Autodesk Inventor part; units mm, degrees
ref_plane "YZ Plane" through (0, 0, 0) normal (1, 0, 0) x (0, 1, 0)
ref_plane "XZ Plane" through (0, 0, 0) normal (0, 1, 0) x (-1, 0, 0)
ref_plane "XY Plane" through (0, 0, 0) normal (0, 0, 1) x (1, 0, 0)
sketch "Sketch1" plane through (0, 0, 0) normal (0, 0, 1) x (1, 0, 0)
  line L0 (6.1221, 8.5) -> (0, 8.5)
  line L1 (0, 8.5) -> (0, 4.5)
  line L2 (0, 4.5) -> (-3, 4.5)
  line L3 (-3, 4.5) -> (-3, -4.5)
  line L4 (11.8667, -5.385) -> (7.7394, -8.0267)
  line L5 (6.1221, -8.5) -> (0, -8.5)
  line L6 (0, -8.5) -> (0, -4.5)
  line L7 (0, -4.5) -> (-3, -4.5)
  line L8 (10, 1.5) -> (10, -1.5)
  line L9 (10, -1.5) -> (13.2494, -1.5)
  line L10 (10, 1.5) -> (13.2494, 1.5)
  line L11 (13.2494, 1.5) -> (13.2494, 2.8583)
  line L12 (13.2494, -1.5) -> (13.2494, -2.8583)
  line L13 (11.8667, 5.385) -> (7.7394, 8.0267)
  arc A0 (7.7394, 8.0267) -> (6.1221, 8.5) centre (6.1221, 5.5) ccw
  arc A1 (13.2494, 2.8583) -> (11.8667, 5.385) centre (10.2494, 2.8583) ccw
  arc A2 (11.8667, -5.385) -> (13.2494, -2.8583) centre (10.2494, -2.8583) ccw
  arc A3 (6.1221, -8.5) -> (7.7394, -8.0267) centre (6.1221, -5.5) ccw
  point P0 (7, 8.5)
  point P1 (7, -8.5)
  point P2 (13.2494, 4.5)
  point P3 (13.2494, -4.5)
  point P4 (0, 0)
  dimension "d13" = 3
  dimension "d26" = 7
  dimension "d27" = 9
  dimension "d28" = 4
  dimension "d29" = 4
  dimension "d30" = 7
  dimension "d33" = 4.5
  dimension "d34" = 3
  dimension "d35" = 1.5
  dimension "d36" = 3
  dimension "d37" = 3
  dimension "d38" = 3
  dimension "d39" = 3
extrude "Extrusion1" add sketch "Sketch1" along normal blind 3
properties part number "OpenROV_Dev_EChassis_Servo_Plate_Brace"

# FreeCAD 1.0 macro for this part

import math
import FreeCAD as App
import Part
import Sketcher
from FreeCAD import Vector

doc = App.newDocument("Part")
params = doc.addObject("Spreadsheet::Sheet", "Params")
for row, (alias, value) in enumerate([
    ("sketch1_radius", "3 mm"),
    ("sketch1_width", "3 mm"),
    ("sketch1_height", "4 mm"),
    ("sketch1_height2", "9 mm"),
    ("pad1_length", "3 mm"),
], start=1):
    params.set(f"A{row}", alias)
    params.set(f"B{row}", "=" + value)
    params.setAlias(f"B{row}", alias)

body = doc.addObject("PartDesign::Body", "Body")

sketch1 = body.newObject("Sketcher::SketchObject", "Sketch")
sketch1.AttachmentSupport = (doc.getObject("XY_Plane"), [""])
sketch1.MapMode = "FlatFace"
sketch1.addGeometry(Part.ArcOfCircle(Part.Circle(Vector(6.1221, 5.5, 0), Vector(0, 0, 1), 2.999979), math.radians(57.377347), math.radians(90)), False)
sketch1.addGeometry(Part.LineSegment(Vector(6.1221, 8.5, 0), Vector(0, 8.5, 0)), False)
sketch1.addGeometry(Part.LineSegment(Vector(0, 8.5, 0), Vector(0, 4.5, 0)), False)
sketch1.addGeometry(Part.LineSegment(Vector(0, 4.5, 0), Vector(-3, 4.5, 0)), False)
sketch1.addGeometry(Part.LineSegment(Vector(-3, 4.5, 0), Vector(-3, -4.5, 0)), False)
sketch1.addGeometry(Part.LineSegment(Vector(-3, -4.5, 0), Vector(0, -4.5, 0)), False)
sketch1.addGeometry(Part.LineSegment(Vector(0, -4.5, 0), Vector(0, -8.5, 0)), False)
sketch1.addGeometry(Part.LineSegment(Vector(0, -8.5, 0), Vector(6.1221, -8.5, 0)), False)
sketch1.addGeometry(Part.ArcOfCircle(Part.Circle(Vector(6.1221, -5.5, 0), Vector(0, 0, 1), 3), math.radians(-90), math.radians(-57.377347)), False)
sketch1.addGeometry(Part.LineSegment(Vector(7.7394, -8.0267, 0), Vector(11.8667, -5.385, 0)), False)
sketch1.addGeometry(Part.ArcOfCircle(Part.Circle(Vector(10.2494, -2.8583, 0), Vector(0, 0, 1), 2.999979), math.radians(-57.377347), math.radians(0)), False)
sketch1.addGeometry(Part.LineSegment(Vector(13.2494, -2.8583, 0), Vector(13.2494, -1.5, 0)), False)
sketch1.addGeometry(Part.LineSegment(Vector(13.2494, -1.5, 0), Vector(10, -1.5, 0)), False)
sketch1.addGeometry(Part.LineSegment(Vector(10, -1.5, 0), Vector(10, 1.5, 0)), False)
sketch1.addGeometry(Part.LineSegment(Vector(10, 1.5, 0), Vector(13.2494, 1.5, 0)), False)
sketch1.addGeometry(Part.LineSegment(Vector(13.2494, 1.5, 0), Vector(13.2494, 2.8583, 0)), False)
sketch1.addGeometry(Part.ArcOfCircle(Part.Circle(Vector(10.2494, 2.8583, 0), Vector(0, 0, 1), 3), math.radians(0), math.radians(57.377347)), False)
sketch1.addGeometry(Part.LineSegment(Vector(11.8667, 5.385, 0), Vector(7.7394, 8.0267, 0)), False)
sketch1.addConstraint(Sketcher.Constraint("Tangent", 0, 2, 1, 1))
sketch1.addConstraint(Sketcher.Constraint("Coincident", 1, 2, 2, 1))
sketch1.addConstraint(Sketcher.Constraint("Coincident", 2, 2, 3, 1))
sketch1.addConstraint(Sketcher.Constraint("Coincident", 3, 2, 4, 1))
sketch1.addConstraint(Sketcher.Constraint("Coincident", 4, 2, 5, 1))
sketch1.addConstraint(Sketcher.Constraint("Coincident", 5, 2, 6, 1))
sketch1.addConstraint(Sketcher.Constraint("Coincident", 6, 2, 7, 1))
sketch1.addConstraint(Sketcher.Constraint("Tangent", 7, 2, 8, 1))
sketch1.addConstraint(Sketcher.Constraint("Tangent", 8, 2, 9, 1))
sketch1.addConstraint(Sketcher.Constraint("Tangent", 9, 2, 10, 1))
sketch1.addConstraint(Sketcher.Constraint("Tangent", 10, 2, 11, 1))
sketch1.addConstraint(Sketcher.Constraint("Coincident", 11, 2, 12, 1))
sketch1.addConstraint(Sketcher.Constraint("Coincident", 12, 2, 13, 1))
sketch1.addConstraint(Sketcher.Constraint("Coincident", 13, 2, 14, 1))
sketch1.addConstraint(Sketcher.Constraint("Coincident", 14, 2, 15, 1))
sketch1.addConstraint(Sketcher.Constraint("Tangent", 15, 2, 16, 1))
sketch1.addConstraint(Sketcher.Constraint("Tangent", 16, 2, 17, 1))
sketch1.addConstraint(Sketcher.Constraint("Tangent", 17, 2, 0, 1))
sketch1.addConstraint(Sketcher.Constraint("Horizontal", 1))
sketch1.addConstraint(Sketcher.Constraint("Vertical", 2))
sketch1.addConstraint(Sketcher.Constraint("Horizontal", 3))
sketch1.addConstraint(Sketcher.Constraint("Vertical", 4))
sketch1.addConstraint(Sketcher.Constraint("Horizontal", 5))
sketch1.addConstraint(Sketcher.Constraint("Vertical", 6))
sketch1.addConstraint(Sketcher.Constraint("Horizontal", 7))
sketch1.addConstraint(Sketcher.Constraint("Vertical", 11))
sketch1.addConstraint(Sketcher.Constraint("Horizontal", 12))
sketch1.addConstraint(Sketcher.Constraint("Vertical", 13))
sketch1.addConstraint(Sketcher.Constraint("Horizontal", 14))
sketch1.addConstraint(Sketcher.Constraint("Vertical", 15))
sketch1.addConstraint(Sketcher.Constraint("Equal", 0, 8))
sketch1.addConstraint(Sketcher.Constraint("Equal", 8, 10))
sketch1.addConstraint(Sketcher.Constraint("Equal", 10, 16))
sketch1.addConstraint(Sketcher.Constraint("Symmetric", 2, 2, 5, 2, -1, 1))
sketch1.addConstraint(Sketcher.Constraint("Symmetric", 0, 3, 8, 3, -1))
sketch1.addConstraint(Sketcher.Constraint("Symmetric", 10, 3, 16, 3, -1))
sketch1.addConstraint(Sketcher.Constraint("PointOnObject", 1, 2, -2))
sketch1.addConstraint(Sketcher.Constraint("Equal", 5, 13))
sketch1.addConstraint(Sketcher.Constraint("Equal", 11, 15))
sketch1.addConstraint(Sketcher.Constraint("Radius", 0, 3.0))
sketch1.addConstraint(Sketcher.Constraint("DistanceX", 3, 2, 3, 1, 3.0))
sketch1.addConstraint(Sketcher.Constraint("DistanceY", 2, 2, 2, 1, 4.0))
sketch1.addConstraint(Sketcher.Constraint("DistanceY", 4, 2, 4, 1, 9.0))
sketch1.addConstraint(Sketcher.Constraint("DistanceX", -1, 1, 12, 2, 10.0))
sketch1.addConstraint(Sketcher.Constraint("DistanceX", 1, 2, 1, 1, 6.122))
sketch1.addConstraint(Sketcher.Constraint("DistanceX", 8, 2, 10, 3, 2.51))
sketch1.addConstraint(Sketcher.Constraint("DistanceX", 12, 2, 12, 1, 3.2494))
sketch1.setExpression("Constraints[39]", "Params.sketch1_radius")
sketch1.setExpression("Constraints[40]", "Params.sketch1_width")
sketch1.setExpression("Constraints[41]", "Params.sketch1_height")
sketch1.setExpression("Constraints[42]", "Params.sketch1_height2")
pad1 = body.newObject("PartDesign::Pad", "Pad")
pad1.Profile = sketch1
pad1.setExpression("Length", "Params.pad1_length")

doc.recompute()
